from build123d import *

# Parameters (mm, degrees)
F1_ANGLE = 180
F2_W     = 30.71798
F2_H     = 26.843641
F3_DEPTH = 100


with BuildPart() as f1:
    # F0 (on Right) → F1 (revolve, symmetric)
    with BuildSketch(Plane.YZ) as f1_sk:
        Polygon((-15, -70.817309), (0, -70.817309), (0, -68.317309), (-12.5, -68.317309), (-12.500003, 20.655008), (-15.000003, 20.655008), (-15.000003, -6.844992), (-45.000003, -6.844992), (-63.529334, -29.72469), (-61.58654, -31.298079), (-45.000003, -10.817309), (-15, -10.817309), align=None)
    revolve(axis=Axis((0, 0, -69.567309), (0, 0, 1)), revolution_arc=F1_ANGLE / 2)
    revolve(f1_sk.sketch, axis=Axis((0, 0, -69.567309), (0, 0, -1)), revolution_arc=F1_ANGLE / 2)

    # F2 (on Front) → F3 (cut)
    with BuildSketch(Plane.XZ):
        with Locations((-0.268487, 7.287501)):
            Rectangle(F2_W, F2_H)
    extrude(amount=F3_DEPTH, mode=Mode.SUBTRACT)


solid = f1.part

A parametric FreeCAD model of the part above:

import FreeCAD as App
import Part
import Sketcher
Q = App.Units.Quantity


def add_polygon(sketch, points):
    """Adds a closed chain of lines whose ends are joined by coincident constraints."""
    first, n = sketch.GeometryCount, len(points)
    for a, b in zip(points, points[1:] + points[:1]):
        sketch.addGeometry(Part.LineSegment(App.Vector(*a, 0), App.Vector(*b, 0)), False)
    for i in range(n):
        sketch.addConstraint(Sketcher.Constraint("Coincident", first + i, 2, first + (i + 1) % n, 1))

doc = App.newDocument("Part")
body = doc.addObject("PartDesign::Body", "Body")

# Sketch on YZ plane
sketch1 = body.newObject("Sketcher::SketchObject", "Sketch")
sketch1.AttachmentSupport = (doc.getObject("YZ_Plane"), [""])
sketch1.MapMode = "FlatFace"
add_polygon(sketch1, [(-15, -70.817309), (0, -70.817309), (0, -68.317309), (-12.5, -68.317309), (-12.500003, 20.655008), (-15.000003, 20.655008), (-15.000003, -6.844992), (-45.000003, -6.844992), (-63.529334, -29.72469), (-61.58654, -31.298079), (-45.000003, -10.817309), (-15, -10.817309)])  # lines 0-11
sketch1.addConstraint([
    Sketcher.Constraint("Horizontal", 0),
    Sketcher.Constraint("Vertical", 1),
    Sketcher.Constraint("Horizontal", 2),
    Sketcher.Constraint("Horizontal", 4),
    Sketcher.Constraint("Vertical", 5),
    Sketcher.Constraint("Horizontal", 6),
    Sketcher.Constraint("Horizontal", 10),
    Sketcher.Constraint("Vertical", 11),
    Sketcher.Constraint("PointOnObject", 0, 2, -2),
    Sketcher.Constraint("Perpendicular", 7, 8),
    Sketcher.Constraint("Perpendicular", 8, 9),
    Sketcher.Constraint("Vertical", 6, 2, 9, 2),
    Sketcher.Constraint("Equal", 4, 1),
    Sketcher.Constraint("DistanceX", 0, 1, 0, 2, 15.0),
    Sketcher.Constraint("DistanceX", 6, 2, 6, 1, 30.0),
    Sketcher.Constraint("DistanceY", 11, 2, 11, 1, 60.0),
    Sketcher.Constraint("Angle", 3, Q("90.000002 deg")),
    Sketcher.Constraint("DistanceX", 2, 2, 2, 1, 12.5),
    Sketcher.Constraint("DistanceX", 4, 2, 4, 1, 2.5),
    Sketcher.Constraint("DistanceY", 5, 2, 5, 1, 27.5),
    Sketcher.Constraint("Distance", 8, 2.5),
    Sketcher.Constraint("Distance", 7, 29.441751),
    Sketcher.Constraint("DistanceY", 0, 2, -1, 1, 70.817309),
    Sketcher.Constraint("DistanceY", 7, 2, -1, 1, 29.72469),
])
revolution = body.newObject("PartDesign::Revolution", "Revolution")
revolution.Profile = sketch1
revolution.ReferenceAxis = (sketch1, ["V_Axis"])
revolution.Angle = 90

# Sketch on YZ plane
sketch2 = body.newObject("Sketcher::SketchObject", "Sketch001")
sketch2.AttachmentSupport = (doc.getObject("YZ_Plane"), [""])
sketch2.MapMode = "FlatFace"
add_polygon(sketch2, [(-15, -70.817309), (0, -70.817309), (0, -68.317309), (-12.5, -68.317309), (-12.500003, 20.655008), (-15.000003, 20.655008), (-15.000003, -6.844992), (-45.000003, -6.844992), (-63.529334, -29.72469), (-61.58654, -31.298079), (-45.000003, -10.817309), (-15, -10.817309)])  # lines 0-11
sketch2.addConstraint([
    Sketcher.Constraint("Horizontal", 0),
    Sketcher.Constraint("Vertical", 1),
    Sketcher.Constraint("Horizontal", 2),
    Sketcher.Constraint("Horizontal", 4),
    Sketcher.Constraint("Vertical", 5),
    Sketcher.Constraint("Horizontal", 6),
    Sketcher.Constraint("Horizontal", 10),
    Sketcher.Constraint("Vertical", 11),
    Sketcher.Constraint("PointOnObject", 0, 2, -2),
    Sketcher.Constraint("Perpendicular", 7, 8),
    Sketcher.Constraint("Perpendicular", 8, 9),
    Sketcher.Constraint("Vertical", 6, 2, 9, 2),
    Sketcher.Constraint("Equal", 4, 1),
    Sketcher.Constraint("DistanceX", 0, 1, 0, 2, 15.0),
    Sketcher.Constraint("DistanceX", 6, 2, 6, 1, 30.0),
    Sketcher.Constraint("DistanceY", 11, 2, 11, 1, 60.0),
    Sketcher.Constraint("Angle", 3, Q("90.000002 deg")),
    Sketcher.Constraint("DistanceX", 2, 2, 2, 1, 12.5),
    Sketcher.Constraint("DistanceX", 4, 2, 4, 1, 2.5),
    Sketcher.Constraint("DistanceY", 5, 2, 5, 1, 27.5),
    Sketcher.Constraint("Distance", 8, 2.5),
    Sketcher.Constraint("Distance", 7, 29.441751),
    Sketcher.Constraint("DistanceY", 0, 2, -1, 1, 70.817309),
    Sketcher.Constraint("DistanceY", 7, 2, -1, 1, 29.72469),
])
revolution2 = body.newObject("PartDesign::Revolution", "Revolution001")
revolution2.Profile = sketch2
revolution2.ReferenceAxis = (sketch2, ["V_Axis"])
revolution2.Angle = 90
revolution2.Reversed = True

# Sketch on XZ plane
sketch3 = body.newObject("Sketcher::SketchObject", "Sketch002")
sketch3.AttachmentSupport = (doc.getObject("XZ_Plane"), [""])
sketch3.MapMode = "FlatFace"
add_polygon(sketch3, [(-15.627477, 20.709322), (-15.627477, -6.13432), (15.090503, -6.13432), (15.090503, 20.709322)])  # lines 0-3
sketch3.addConstraint([
    Sketcher.Constraint("Vertical", 0),
    Sketcher.Constraint("Horizontal", 1),
    Sketcher.Constraint("Vertical", 2),
    Sketcher.Constraint("Horizontal", 3),
    Sketcher.Constraint("DistanceX", 1, 1, 1, 2, 30.71798),
    Sketcher.Constraint("DistanceY", 0, 2, 0, 1, 26.843641),
    Sketcher.Constraint("DistanceY", 0, 2, -1, 1, 6.13432),
    Sketcher.Constraint("DistanceX", 0, 2, -1, 1, 15.627477),
])
pocket1 = body.newObject("PartDesign::Pocket", "Pocket")
pocket1.Profile = sketch3
pocket1.Length = 100
pocket1.Reversed = True

doc.recompute()
